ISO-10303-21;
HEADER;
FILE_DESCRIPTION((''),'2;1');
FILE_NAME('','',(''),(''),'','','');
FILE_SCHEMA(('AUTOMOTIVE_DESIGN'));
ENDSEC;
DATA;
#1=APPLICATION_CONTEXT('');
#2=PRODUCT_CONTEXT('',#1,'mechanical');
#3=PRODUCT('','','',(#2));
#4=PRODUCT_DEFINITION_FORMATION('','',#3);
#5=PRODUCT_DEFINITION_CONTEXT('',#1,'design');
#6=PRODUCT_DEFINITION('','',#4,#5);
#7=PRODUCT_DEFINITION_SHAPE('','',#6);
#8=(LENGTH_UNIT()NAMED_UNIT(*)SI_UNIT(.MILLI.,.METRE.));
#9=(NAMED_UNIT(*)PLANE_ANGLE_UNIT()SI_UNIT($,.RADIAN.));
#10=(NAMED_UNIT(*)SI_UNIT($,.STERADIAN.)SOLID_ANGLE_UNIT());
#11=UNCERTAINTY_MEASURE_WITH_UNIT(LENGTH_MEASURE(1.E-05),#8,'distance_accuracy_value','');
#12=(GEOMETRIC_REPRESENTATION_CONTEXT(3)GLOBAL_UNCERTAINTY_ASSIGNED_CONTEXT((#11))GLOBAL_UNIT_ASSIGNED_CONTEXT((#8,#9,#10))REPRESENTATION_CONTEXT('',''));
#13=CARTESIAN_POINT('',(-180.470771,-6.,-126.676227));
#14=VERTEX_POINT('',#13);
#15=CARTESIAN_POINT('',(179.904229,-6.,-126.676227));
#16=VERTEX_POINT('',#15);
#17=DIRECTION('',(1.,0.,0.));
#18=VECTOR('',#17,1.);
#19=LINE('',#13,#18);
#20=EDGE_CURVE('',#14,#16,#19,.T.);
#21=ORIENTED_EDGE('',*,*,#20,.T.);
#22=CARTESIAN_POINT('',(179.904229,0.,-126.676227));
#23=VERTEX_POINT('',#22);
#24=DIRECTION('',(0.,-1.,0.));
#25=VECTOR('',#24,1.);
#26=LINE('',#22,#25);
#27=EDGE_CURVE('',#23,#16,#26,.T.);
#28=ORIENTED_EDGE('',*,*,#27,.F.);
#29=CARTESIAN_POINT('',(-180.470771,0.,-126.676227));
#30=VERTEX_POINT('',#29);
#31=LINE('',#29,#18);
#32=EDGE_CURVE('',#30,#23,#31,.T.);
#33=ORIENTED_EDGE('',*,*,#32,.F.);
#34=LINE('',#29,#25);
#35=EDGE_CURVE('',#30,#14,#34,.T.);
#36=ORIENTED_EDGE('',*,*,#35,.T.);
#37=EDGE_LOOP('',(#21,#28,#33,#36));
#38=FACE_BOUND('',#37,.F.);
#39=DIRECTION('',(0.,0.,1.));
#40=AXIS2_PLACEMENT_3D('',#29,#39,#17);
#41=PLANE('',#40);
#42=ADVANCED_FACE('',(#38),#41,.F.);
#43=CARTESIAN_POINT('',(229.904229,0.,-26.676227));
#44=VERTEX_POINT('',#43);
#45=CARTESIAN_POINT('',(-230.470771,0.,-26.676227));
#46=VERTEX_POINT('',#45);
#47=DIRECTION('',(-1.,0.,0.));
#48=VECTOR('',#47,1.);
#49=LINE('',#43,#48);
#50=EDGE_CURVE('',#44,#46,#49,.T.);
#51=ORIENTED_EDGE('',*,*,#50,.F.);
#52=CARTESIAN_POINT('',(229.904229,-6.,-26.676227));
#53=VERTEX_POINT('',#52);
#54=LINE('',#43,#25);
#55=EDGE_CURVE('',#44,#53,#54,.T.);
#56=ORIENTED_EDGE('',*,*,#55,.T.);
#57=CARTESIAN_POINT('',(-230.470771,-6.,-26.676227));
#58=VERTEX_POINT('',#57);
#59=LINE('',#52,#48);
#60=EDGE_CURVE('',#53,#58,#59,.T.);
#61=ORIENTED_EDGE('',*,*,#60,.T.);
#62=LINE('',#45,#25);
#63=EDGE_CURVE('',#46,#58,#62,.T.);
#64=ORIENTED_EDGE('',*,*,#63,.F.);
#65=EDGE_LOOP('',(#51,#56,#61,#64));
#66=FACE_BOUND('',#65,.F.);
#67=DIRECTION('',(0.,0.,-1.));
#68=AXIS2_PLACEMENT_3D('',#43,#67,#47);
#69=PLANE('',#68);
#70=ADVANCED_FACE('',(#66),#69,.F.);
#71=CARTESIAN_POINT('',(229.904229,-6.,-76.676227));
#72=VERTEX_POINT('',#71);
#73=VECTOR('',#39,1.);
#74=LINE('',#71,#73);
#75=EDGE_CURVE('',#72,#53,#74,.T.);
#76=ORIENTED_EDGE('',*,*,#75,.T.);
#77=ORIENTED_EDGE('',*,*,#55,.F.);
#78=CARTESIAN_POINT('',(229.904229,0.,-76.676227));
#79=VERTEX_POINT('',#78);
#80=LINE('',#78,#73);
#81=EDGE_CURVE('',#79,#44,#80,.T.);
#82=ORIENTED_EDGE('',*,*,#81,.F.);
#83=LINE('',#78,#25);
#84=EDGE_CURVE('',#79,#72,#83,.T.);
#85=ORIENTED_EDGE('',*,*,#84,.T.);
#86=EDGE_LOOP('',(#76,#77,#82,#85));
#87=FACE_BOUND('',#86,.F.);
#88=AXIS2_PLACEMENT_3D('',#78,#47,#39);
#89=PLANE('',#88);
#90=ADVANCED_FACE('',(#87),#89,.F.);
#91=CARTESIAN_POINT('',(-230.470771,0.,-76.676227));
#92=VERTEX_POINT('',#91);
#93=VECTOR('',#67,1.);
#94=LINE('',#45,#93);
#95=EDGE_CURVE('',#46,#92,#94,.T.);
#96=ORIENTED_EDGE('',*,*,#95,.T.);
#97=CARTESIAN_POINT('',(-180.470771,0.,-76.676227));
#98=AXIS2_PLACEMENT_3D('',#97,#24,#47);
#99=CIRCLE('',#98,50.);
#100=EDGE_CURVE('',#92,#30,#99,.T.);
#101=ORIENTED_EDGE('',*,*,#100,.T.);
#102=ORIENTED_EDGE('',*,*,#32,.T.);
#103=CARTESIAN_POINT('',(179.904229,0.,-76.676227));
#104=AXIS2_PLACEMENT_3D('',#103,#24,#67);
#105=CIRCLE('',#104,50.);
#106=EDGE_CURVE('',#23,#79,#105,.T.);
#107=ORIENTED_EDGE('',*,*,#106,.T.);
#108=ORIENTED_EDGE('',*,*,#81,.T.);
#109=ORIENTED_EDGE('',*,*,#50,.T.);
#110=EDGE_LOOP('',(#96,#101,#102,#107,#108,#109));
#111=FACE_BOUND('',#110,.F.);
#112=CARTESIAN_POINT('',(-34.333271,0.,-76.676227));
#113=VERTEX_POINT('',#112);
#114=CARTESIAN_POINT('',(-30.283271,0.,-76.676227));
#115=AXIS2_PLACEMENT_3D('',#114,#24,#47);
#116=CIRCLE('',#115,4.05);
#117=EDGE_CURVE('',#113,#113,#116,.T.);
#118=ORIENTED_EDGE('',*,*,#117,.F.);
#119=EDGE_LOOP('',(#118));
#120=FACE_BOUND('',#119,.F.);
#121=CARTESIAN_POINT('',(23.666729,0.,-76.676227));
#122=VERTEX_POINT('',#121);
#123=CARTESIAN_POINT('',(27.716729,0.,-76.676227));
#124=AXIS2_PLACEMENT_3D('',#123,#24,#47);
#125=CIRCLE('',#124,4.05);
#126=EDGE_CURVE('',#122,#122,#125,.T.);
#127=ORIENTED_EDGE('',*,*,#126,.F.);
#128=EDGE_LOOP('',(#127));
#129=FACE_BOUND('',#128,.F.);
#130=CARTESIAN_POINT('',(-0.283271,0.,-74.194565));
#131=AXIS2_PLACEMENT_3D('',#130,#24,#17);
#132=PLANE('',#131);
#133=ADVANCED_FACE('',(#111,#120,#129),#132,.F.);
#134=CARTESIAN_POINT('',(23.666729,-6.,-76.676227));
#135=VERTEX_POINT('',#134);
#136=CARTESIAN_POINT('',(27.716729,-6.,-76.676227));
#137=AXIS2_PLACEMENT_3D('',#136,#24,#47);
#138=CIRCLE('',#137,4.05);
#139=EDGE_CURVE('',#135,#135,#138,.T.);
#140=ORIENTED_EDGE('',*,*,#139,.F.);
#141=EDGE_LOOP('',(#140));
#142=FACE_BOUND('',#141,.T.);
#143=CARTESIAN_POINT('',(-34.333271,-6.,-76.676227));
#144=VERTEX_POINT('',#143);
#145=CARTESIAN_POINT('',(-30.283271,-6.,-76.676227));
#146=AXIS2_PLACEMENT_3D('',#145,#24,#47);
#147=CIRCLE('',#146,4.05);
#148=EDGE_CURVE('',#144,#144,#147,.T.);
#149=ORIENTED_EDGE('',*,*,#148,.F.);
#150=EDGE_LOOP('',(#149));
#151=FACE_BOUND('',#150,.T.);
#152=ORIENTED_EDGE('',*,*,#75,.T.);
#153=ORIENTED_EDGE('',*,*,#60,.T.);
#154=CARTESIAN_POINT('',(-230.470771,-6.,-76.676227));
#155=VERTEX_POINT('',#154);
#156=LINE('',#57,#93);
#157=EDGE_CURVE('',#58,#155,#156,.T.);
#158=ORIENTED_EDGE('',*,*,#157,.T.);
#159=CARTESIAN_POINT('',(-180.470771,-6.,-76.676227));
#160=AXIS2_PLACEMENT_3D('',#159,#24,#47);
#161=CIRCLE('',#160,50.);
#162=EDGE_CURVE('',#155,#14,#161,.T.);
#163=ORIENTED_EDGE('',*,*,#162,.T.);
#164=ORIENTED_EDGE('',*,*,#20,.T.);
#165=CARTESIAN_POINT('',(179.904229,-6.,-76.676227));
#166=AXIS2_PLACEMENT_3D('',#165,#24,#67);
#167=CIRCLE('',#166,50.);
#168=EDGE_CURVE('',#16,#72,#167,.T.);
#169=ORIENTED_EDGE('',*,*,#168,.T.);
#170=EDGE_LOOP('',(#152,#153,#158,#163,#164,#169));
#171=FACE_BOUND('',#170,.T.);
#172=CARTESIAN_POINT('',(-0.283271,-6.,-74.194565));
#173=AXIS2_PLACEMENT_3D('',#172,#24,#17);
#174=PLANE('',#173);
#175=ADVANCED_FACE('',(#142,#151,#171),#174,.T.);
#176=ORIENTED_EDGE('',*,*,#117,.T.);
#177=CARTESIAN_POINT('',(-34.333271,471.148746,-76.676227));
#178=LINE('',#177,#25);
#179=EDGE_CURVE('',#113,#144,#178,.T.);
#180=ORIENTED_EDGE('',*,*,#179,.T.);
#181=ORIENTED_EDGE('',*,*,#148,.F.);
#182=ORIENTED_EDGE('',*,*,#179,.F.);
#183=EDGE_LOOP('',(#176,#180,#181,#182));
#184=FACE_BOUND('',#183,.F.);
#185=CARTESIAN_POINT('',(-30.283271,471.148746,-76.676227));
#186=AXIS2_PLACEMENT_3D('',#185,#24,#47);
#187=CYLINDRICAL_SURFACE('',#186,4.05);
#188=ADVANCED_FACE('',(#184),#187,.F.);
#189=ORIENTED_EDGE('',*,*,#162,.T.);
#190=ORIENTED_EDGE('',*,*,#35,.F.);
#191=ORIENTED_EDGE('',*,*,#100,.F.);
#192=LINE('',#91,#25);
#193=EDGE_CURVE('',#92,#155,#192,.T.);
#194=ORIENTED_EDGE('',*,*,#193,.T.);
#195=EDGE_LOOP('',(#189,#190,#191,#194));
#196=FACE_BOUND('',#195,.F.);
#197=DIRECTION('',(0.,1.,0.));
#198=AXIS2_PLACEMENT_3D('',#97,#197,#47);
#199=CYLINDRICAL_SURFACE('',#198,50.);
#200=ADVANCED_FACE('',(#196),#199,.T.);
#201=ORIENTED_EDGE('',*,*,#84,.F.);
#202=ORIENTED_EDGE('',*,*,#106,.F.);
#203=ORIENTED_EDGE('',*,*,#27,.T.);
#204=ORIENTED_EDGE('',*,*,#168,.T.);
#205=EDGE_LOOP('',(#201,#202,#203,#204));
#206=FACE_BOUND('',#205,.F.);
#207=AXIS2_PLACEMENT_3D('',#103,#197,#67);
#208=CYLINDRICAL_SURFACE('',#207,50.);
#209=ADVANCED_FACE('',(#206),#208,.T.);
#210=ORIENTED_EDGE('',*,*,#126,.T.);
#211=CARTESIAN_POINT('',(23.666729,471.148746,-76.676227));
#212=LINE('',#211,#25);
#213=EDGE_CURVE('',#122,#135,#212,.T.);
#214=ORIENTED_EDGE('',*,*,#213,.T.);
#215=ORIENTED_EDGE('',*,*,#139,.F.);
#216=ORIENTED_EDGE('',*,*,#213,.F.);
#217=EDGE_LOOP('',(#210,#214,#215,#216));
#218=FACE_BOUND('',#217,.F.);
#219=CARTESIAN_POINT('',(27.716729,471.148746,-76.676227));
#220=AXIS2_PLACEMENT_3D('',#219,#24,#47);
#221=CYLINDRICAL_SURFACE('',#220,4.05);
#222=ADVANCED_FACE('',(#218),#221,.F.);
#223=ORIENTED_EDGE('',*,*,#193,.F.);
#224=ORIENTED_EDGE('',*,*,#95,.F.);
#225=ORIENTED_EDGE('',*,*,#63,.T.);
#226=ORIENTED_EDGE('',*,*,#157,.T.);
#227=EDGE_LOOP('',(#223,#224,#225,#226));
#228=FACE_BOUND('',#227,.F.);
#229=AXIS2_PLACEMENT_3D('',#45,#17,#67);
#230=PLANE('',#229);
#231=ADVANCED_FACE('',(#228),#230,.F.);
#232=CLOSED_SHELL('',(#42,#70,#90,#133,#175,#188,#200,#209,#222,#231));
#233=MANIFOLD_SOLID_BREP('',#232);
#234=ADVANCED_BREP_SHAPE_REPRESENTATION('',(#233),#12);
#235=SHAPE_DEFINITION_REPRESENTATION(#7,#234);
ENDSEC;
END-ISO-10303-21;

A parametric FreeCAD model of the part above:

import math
import FreeCAD as App
import Part
import Sketcher

doc = App.newDocument("Part")
params = doc.addObject("Spreadsheet::Sheet", "Params")
for row, (alias, value) in enumerate([
    ("sketch1_radius", "50 mm"),
    ("sketch1_height", "50 mm"),
    ("pad1_length", "6 mm"),
    ("sketch2_diameter", "8.1 mm"),
    ("hole_diameter", "8.1 mm"),
], start=1):
    params.set(f"A{row}", alias)
    params.set(f"B{row}", "=" + value)
    params.setAlias(f"B{row}", alias)

body = doc.addObject("PartDesign::Body", "Body")

sketch1 = body.newObject("Sketcher::SketchObject", "Sketch")
sketch1.AttachmentSupport = (doc.getObject("XZ_Plane"), [""])
sketch1.MapMode = "FlatFace"
sketch1.addGeometry([
    Part.LineSegment(App.Vector(229.904229, -26.676227, 0), App.Vector(-230.470771, -26.676227, 0)),
    Part.LineSegment(App.Vector(-230.470771, -26.676227, 0), App.Vector(-230.470771, -76.676227, 0)),
    Part.ArcOfCircle(Part.Circle(App.Vector(-180.470771, -76.676227, 0), App.Vector(0, 0, 1), 50), math.radians(180), math.radians(270)),
    Part.LineSegment(App.Vector(-180.470771, -126.676227, 0), App.Vector(179.904229, -126.676227, 0)),
    Part.ArcOfCircle(Part.Circle(App.Vector(179.904229, -76.676227, 0), App.Vector(0, 0, 1), 50), math.radians(-90), math.radians(0)),
    Part.LineSegment(App.Vector(229.904229, -76.676227, 0), App.Vector(229.904229, -26.676227, 0)),
], False)
sketch1.addConstraint([
    Sketcher.Constraint("Coincident", 0, 2, 1, 1),
    Sketcher.Constraint("Tangent", 1, 2, 2, 1),
    Sketcher.Constraint("Tangent", 2, 2, 3, 1),
    Sketcher.Constraint("Tangent", 3, 2, 4, 1),
    Sketcher.Constraint("Tangent", 4, 2, 5, 1),
    Sketcher.Constraint("Coincident", 5, 2, 0, 1),
    Sketcher.Constraint("Horizontal", 0),
    Sketcher.Constraint("Vertical", 1),
    Sketcher.Constraint("Horizontal", 3),
    Sketcher.Constraint("Vertical", 5),
    Sketcher.Constraint("Equal", 2, 4),
    Sketcher.Constraint("Radius", 2, 50.0),
    Sketcher.Constraint("DistanceY", 1, 2, 1, 1, 50.0),
    Sketcher.Constraint("DistanceX", 0, 2, 0, 1, 460.375),
    Sketcher.Constraint("DistanceX", 2, 3, -1, 1, 180.470771),
    Sketcher.Constraint("DistanceY", 2, 3, -1, 1, 76.676227),
])
sketch1.setExpression("Constraints[11]", "Params.sketch1_radius")
sketch1.setExpression("Constraints[12]", "Params.sketch1_height")
pad1 = body.newObject("PartDesign::Pad", "Pad")
pad1.Profile = sketch1
pad1.setExpression("Length", "Params.pad1_length")

sketch2 = body.newObject("Sketcher::SketchObject", "Sketch001")
sketch2.AttachmentSupport = (doc.getObject("XZ_Plane"), [""])
sketch2.MapMode = "FlatFace"
sketch2.addGeometry([
    Part.Circle(App.Vector(-30.283271, -76.676227, 0), App.Vector(0, 0, 1), 4.05),
    Part.Circle(App.Vector(27.716729, -76.676227, 0), App.Vector(0, 0, 1), 4.05),
], False)
sketch2.addConstraint([
    Sketcher.Constraint("Equal", 0, 1),
    Sketcher.Constraint("Horizontal", 0, 3, 1, 3),
    Sketcher.Constraint("Diameter", 0, 8.1),
    Sketcher.Constraint("DistanceX", 0, 3, 1, 3, 58.0),
    Sketcher.Constraint("DistanceX", 0, 3, -1, 1, 30.283271),
    Sketcher.Constraint("DistanceY", 0, 3, -1, 1, 76.676227),
])
sketch2.setExpression("Constraints[2]", "Params.sketch2_diameter")
doc.recompute()
hole = body.newObject("PartDesign::Hole", "Hole")
hole.Profile = sketch2
hole.ThreadType = "None"
hole.setExpression("Diameter", "Params.hole_diameter")
hole.DepthType = "ThroughAll"
hole.Reversed = True

doc.recompute()
